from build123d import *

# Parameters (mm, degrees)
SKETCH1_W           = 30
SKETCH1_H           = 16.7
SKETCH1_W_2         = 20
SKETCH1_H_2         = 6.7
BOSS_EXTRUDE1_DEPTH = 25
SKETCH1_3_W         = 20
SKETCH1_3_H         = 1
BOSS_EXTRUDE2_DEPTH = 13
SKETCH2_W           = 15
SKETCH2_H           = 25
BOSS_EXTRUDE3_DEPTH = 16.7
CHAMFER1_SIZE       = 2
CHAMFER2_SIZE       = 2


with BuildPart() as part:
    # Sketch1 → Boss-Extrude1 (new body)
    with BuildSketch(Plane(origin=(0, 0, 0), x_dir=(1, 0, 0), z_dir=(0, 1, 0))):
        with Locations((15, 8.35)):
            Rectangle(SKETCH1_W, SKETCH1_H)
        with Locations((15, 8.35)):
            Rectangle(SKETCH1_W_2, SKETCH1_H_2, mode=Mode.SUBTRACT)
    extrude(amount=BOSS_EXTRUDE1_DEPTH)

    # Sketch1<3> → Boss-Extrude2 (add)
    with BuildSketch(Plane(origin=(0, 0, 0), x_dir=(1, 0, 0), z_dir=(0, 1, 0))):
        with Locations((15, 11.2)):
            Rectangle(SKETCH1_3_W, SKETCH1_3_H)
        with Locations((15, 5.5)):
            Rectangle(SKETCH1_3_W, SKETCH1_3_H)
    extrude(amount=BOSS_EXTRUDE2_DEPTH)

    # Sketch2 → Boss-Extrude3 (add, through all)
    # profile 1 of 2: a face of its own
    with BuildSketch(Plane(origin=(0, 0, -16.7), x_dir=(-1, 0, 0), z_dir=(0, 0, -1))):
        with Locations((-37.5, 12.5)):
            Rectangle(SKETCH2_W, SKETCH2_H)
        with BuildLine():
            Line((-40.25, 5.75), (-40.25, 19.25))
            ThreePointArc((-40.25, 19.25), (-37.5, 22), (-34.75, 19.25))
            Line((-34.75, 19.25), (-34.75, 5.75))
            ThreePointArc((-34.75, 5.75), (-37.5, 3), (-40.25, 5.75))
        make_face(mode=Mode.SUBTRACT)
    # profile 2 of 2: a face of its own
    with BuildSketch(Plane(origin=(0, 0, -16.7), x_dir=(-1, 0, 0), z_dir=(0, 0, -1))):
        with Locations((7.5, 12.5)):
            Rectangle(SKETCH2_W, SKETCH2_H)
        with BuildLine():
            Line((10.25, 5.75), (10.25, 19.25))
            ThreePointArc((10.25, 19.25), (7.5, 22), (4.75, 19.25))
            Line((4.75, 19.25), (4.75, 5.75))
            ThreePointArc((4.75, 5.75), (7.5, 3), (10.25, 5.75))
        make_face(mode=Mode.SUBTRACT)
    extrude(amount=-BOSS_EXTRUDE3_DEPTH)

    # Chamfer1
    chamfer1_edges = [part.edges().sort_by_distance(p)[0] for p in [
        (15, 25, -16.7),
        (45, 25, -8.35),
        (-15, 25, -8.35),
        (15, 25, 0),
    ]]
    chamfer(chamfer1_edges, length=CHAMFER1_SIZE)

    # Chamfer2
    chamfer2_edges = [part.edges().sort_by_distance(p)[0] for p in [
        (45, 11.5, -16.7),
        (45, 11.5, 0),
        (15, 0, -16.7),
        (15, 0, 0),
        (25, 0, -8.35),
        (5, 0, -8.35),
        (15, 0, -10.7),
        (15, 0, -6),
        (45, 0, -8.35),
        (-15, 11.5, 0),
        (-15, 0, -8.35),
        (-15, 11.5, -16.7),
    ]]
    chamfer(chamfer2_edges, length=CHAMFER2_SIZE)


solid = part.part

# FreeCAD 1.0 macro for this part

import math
import FreeCAD as App
import Part
import Sketcher
from FreeCAD import Vector


def edges_at(feature, points):
    """Names of the edges that pass closest to the given points."""
    edges = feature.Shape.Edges
    near = lambda p: min(range(len(edges)), key=lambda i: edges[i].distToShape(Part.Vertex(*p))[0])
    return sorted({f"Edge{near(p) + 1}" for p in points})


def add_polygon(sketch, points):
    """Adds a closed chain of lines whose ends are joined by coincident constraints."""
    first, n = sketch.GeometryCount, len(points)
    for a, b in zip(points, points[1:] + points[:1]):
        sketch.addGeometry(Part.LineSegment(App.Vector(*a, 0), App.Vector(*b, 0)), False)
    for i in range(n):
        sketch.addConstraint(Sketcher.Constraint("Coincident", first + i, 2, first + (i + 1) % n, 1))

doc = App.newDocument("Part")
body = doc.addObject("PartDesign::Body", "Body")

sketch1 = doc.addObject("Sketcher::SketchObject", "Sketch")
body.addObject(sketch1)
sketch1.AttachmentSupport = (doc.XZ_Plane, [""])
sketch1.MapMode = "FlatFace"
add_polygon(sketch1, [(0, -16.7), (0, 0), (30, 0), (30, -16.7)])
add_polygon(sketch1, [(25, -5), (5, -5), (5, -11.7), (25, -11.7)])
sketch1.addConstraint(Sketcher.Constraint("Vertical", 0))
sketch1.addConstraint(Sketcher.Constraint("Horizontal", 1))
sketch1.addConstraint(Sketcher.Constraint("Vertical", 2))
sketch1.addConstraint(Sketcher.Constraint("Horizontal", 3))
sketch1.addConstraint(Sketcher.Constraint("Horizontal", 4))
sketch1.addConstraint(Sketcher.Constraint("Vertical", 5))
sketch1.addConstraint(Sketcher.Constraint("Horizontal", 6))
sketch1.addConstraint(Sketcher.Constraint("Vertical", 7))
sketch1.addConstraint(Sketcher.Constraint("Coincident", 0, 2, -1, 1))
sketch1.addConstraint(Sketcher.Constraint("DistanceX", 1, 1, 1, 2, 30.0))
sketch1.addConstraint(Sketcher.Constraint("DistanceX", 4, 2, 4, 1, 20.0))
sketch1.addConstraint(Sketcher.Constraint("DistanceY", 0, 1, 0, 2, 16.7))
sketch1.addConstraint(Sketcher.Constraint("DistanceY", 5, 2, 5, 1, 6.7))
sketch1.addConstraint(Sketcher.Constraint("DistanceX", -1, 1, 4, 2, 5.0))
sketch1.addConstraint(Sketcher.Constraint("DistanceY", 4, 2, -1, 1, 5.0))
pad1 = doc.addObject("PartDesign::Pad", "Pad")
body.addObject(pad1)
pad1.Profile = sketch1
pad1.Length = 25
pad1.Reversed = True

sketch2 = doc.addObject("Sketcher::SketchObject", "Sketch001")
body.addObject(sketch2)
sketch2.AttachmentSupport = (doc.XZ_Plane, [""])
sketch2.MapMode = "FlatFace"
add_polygon(sketch2, [(5, -11.7), (5, -10.7), (25, -10.7), (25, -11.7)])
add_polygon(sketch2, [(5, -6), (5, -5), (25, -5), (25, -6)])
sketch2.addConstraint(Sketcher.Constraint("Vertical", 0))
sketch2.addConstraint(Sketcher.Constraint("Horizontal", 1))
sketch2.addConstraint(Sketcher.Constraint("Vertical", 2))
sketch2.addConstraint(Sketcher.Constraint("Horizontal", 3))
sketch2.addConstraint(Sketcher.Constraint("Vertical", 4))
sketch2.addConstraint(Sketcher.Constraint("Horizontal", 5))
sketch2.addConstraint(Sketcher.Constraint("Vertical", 6))
sketch2.addConstraint(Sketcher.Constraint("Horizontal", 7))
sketch2.addConstraint(Sketcher.Constraint("Vertical", 3, 2, 4, 2))
sketch2.addConstraint(Sketcher.Constraint("Vertical", 2, 2, 5, 2))
sketch2.addConstraint(Sketcher.Constraint("Equal", 2, 4))
sketch2.addConstraint(Sketcher.Constraint("DistanceX", 1, 1, 1, 2, 20.0))
sketch2.addConstraint(Sketcher.Constraint("DistanceY", 0, 1, 0, 2, 1.0))
sketch2.addConstraint(Sketcher.Constraint("DistanceX", -1, 1, 0, 2, 5.0))
sketch2.addConstraint(Sketcher.Constraint("DistanceY", 4, 2, -1, 1, 5.0))
sketch2.addConstraint(Sketcher.Constraint("DistanceY", 0, 2, -1, 1, 10.7))
pad2 = doc.addObject("PartDesign::Pad", "Pad001")
body.addObject(pad2)
pad2.Profile = sketch2
pad2.Length = 13
pad2.Reversed = True

sketch3 = doc.addObject("Sketcher::SketchObject", "Sketch002")
body.addObject(sketch3)
sketch3.AttachmentSupport = (doc.XY_Plane, [""])
sketch3.MapMode = "FlatFace"
sketch3.AttachmentOffset = App.Placement(Vector(0, 0, -16.7), App.Rotation())
add_polygon(sketch3, [(45, 25), (45, 0), (30, 0), (30, 25)])
sketch3.addGeometry(Part.ArcOfCircle(Part.Circle(Vector(37.5, 5.75, 0), Vector(0, 0, 1), 2.75), math.radians(180), math.radians(360)), False)
sketch3.addGeometry(Part.LineSegment(Vector(40.25, 5.75, 0), Vector(40.25, 19.25, 0)), False)
sketch3.addGeometry(Part.ArcOfCircle(Part.Circle(Vector(37.5, 19.25, 0), Vector(0, 0, 1), 2.75), math.radians(0), math.radians(180)), False)
sketch3.addGeometry(Part.LineSegment(Vector(34.75, 19.25, 0), Vector(34.75, 5.75, 0)), False)
add_polygon(sketch3, [(0, 25), (0, 0), (-15, 0), (-15, 25)])
sketch3.addGeometry(Part.LineSegment(Vector(-10.25, 19.25, 0), Vector(-10.25, 5.75, 0)), False)
sketch3.addGeometry(Part.ArcOfCircle(Part.Circle(Vector(-7.5, 5.75, 0), Vector(0, 0, 1), 2.75), math.radians(180), math.radians(360)), False)
sketch3.addGeometry(Part.LineSegment(Vector(-4.75, 5.75, 0), Vector(-4.75, 19.25, 0)), False)
sketch3.addGeometry(Part.ArcOfCircle(Part.Circle(Vector(-7.5, 19.25, 0), Vector(0, 0, 1), 2.75), math.radians(0), math.radians(180)), False)
sketch3.addConstraint(Sketcher.Constraint("Tangent", 4, 2, 5, 1))
sketch3.addConstraint(Sketcher.Constraint("Tangent", 5, 2, 6, 1))
sketch3.addConstraint(Sketcher.Constraint("Tangent", 6, 2, 7, 1))
sketch3.addConstraint(Sketcher.Constraint("Tangent", 7, 2, 4, 1))
sketch3.addConstraint(Sketcher.Constraint("Tangent", 12, 2, 13, 1))
sketch3.addConstraint(Sketcher.Constraint("Tangent", 13, 2, 14, 1))
sketch3.addConstraint(Sketcher.Constraint("Tangent", 14, 2, 15, 1))
sketch3.addConstraint(Sketcher.Constraint("Tangent", 15, 2, 12, 1))
sketch3.addConstraint(Sketcher.Constraint("Vertical", 0))
sketch3.addConstraint(Sketcher.Constraint("Horizontal", 1))
sketch3.addConstraint(Sketcher.Constraint("Vertical", 2))
sketch3.addConstraint(Sketcher.Constraint("Horizontal", 3))
sketch3.addConstraint(Sketcher.Constraint("Vertical", 5))
sketch3.addConstraint(Sketcher.Constraint("Vertical", 7))
sketch3.addConstraint(Sketcher.Constraint("Vertical", 8))
sketch3.addConstraint(Sketcher.Constraint("Horizontal", 9))
sketch3.addConstraint(Sketcher.Constraint("Vertical", 10))
sketch3.addConstraint(Sketcher.Constraint("Horizontal", 11))
sketch3.addConstraint(Sketcher.Constraint("Vertical", 12))
sketch3.addConstraint(Sketcher.Constraint("Vertical", 14))
sketch3.addConstraint(Sketcher.Constraint("Coincident", 8, 2, -1, 1))
sketch3.addConstraint(Sketcher.Constraint("Equal", 6, 13))
sketch3.addConstraint(Sketcher.Constraint("PointOnObject", 0, 2, -1))
sketch3.addConstraint(Sketcher.Constraint("Horizontal", 4, 3, 13, 3))
sketch3.addConstraint(Sketcher.Constraint("Horizontal", 6, 3, 15, 3))
sketch3.addConstraint(Sketcher.Constraint("Horizontal", 3, 2, 10, 2))
sketch3.addConstraint(Sketcher.Constraint("Equal", 3, 9))
sketch3.addConstraint(Sketcher.Constraint("DistanceX", 1, 2, 1, 1, 15.0))
sketch3.addConstraint(Sketcher.Constraint("DistanceY", 0, 2, 0, 1, 25.0))
sketch3.addConstraint(Sketcher.Constraint("Radius", 4, 2.75))
sketch3.addConstraint(Sketcher.Constraint("DistanceY", 5, 1, 5, 2, 13.5))
sketch3.addConstraint(Sketcher.Constraint("DistanceX", -1, 1, 0, 2, 45.0))
sketch3.addConstraint(Sketcher.Constraint("DistanceX", 13, 3, 4, 3, 45.0))
sketch3.addConstraint(Sketcher.Constraint("DistanceX", -1, 1, 4, 3, 37.5))
sketch3.addConstraint(Sketcher.Constraint("DistanceY", -1, 1, 4, 3, 5.75))
pad3 = doc.addObject("PartDesign::Pad", "Pad002")
body.addObject(pad3)
pad3.Profile = sketch3
pad3.Length = 16.7
doc.recompute()

chamfer = doc.addObject("PartDesign::Chamfer", "Chamfer")
body.addObject(chamfer)
chamfer.Base = (pad3, edges_at(pad3, [
    (15, 25, -16.7),
    (45, 25, -8.35),
    (-15, 25, -8.35),
    (15, 25, 0),
]))
chamfer.Size = 2
doc.recompute()

chamfer2 = doc.addObject("PartDesign::Chamfer", "Chamfer001")
body.addObject(chamfer2)
chamfer2.Base = (chamfer, edges_at(chamfer, [
    (45, 11.5, -16.7),
    (45, 11.5, 0),
    (15, 0, -16.7),
    (15, 0, 0),
    (25, 0, -8.35),
    (5, 0, -8.35),
    (15, 0, -10.7),
    (15, 0, -6),
    (45, 0, -8.35),
    (-15, 11.5, 0),
    (-15, 0, -8.35),
    (-15, 11.5, -16.7),
]))
chamfer2.Size = 2

doc.recompute()
